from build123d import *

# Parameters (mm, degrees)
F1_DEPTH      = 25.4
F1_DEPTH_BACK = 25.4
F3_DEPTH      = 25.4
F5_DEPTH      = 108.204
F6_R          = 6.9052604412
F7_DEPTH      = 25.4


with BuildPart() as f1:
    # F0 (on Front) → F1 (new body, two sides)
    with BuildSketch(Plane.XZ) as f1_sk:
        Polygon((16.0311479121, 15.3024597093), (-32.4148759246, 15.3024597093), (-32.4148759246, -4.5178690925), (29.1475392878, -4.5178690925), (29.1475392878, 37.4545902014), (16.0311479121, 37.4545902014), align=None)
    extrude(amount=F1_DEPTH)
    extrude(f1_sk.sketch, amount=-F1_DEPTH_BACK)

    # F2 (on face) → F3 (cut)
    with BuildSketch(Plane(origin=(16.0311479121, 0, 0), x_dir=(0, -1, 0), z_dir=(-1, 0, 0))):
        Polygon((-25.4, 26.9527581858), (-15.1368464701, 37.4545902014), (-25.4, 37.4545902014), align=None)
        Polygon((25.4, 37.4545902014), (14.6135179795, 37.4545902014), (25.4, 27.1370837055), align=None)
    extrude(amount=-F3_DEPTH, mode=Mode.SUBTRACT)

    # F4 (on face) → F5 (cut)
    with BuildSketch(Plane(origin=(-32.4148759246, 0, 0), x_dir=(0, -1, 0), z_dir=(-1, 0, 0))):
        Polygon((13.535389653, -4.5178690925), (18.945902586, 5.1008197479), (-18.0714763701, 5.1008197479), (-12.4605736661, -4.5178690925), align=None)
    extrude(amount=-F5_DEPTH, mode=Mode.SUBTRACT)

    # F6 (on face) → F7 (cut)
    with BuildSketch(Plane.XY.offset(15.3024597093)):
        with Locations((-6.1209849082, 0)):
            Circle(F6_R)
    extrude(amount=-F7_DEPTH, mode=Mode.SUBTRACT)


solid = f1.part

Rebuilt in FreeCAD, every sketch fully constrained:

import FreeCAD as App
import Part
import Sketcher

V = App.Vector
Q = App.Units.Quantity


def add_polygon(sketch, points):
    """Adds a closed chain of lines whose ends are joined by coincident constraints."""
    first, n = sketch.GeometryCount, len(points)
    for a, b in zip(points, points[1:] + points[:1]):
        sketch.addGeometry(Part.LineSegment(App.Vector(*a, 0), App.Vector(*b, 0)), False)
    for i in range(n):
        sketch.addConstraint(Sketcher.Constraint("Coincident", first + i, 2, first + (i + 1) % n, 1))

doc = App.newDocument("Part")
params = doc.addObject("Spreadsheet::Sheet", "Params")
for row, (alias, value) in enumerate([
    ("pad1_length", "1 in"),
    ("pad1_length2", "1 in"),
    ("pocket1_length", "1 in"),
    ("pocket2_length", "4.26 in"),
    ("pocket3_length", "1 in"),
], start=1):
    params.set(f"A{row}", alias)
    params.set(f"B{row}", "=" + value)
    params.setAlias(f"B{row}", alias)

body = doc.addObject("PartDesign::Body", "Body")

sketch1 = body.newObject("Sketcher::SketchObject", "Sketch")
sketch1.AttachmentSupport = (doc.getObject("XZ_Plane"), [""])
sketch1.MapMode = "FlatFace"
add_polygon(sketch1, [(16, 15), (-32, 15), (-32, -5), (29, -5), (29, 37), (16, 37)])
sketch1.addConstraint([
    Sketcher.Constraint("Horizontal", 0),
    Sketcher.Constraint("Vertical", 1),
    Sketcher.Constraint("Horizontal", 2),
    Sketcher.Constraint("Vertical", 3),
    Sketcher.Constraint("Horizontal", 4),
    Sketcher.Constraint("Vertical", 5),
    Sketcher.Constraint("DistanceX", 4, 2, 4, 1, 13.116391),
    Sketcher.Constraint("DistanceY", 1, 2, 1, 1, 19.820329),
    Sketcher.Constraint("DistanceY", 3, 1, 3, 2, 41.972459),
    Sketcher.Constraint("DistanceX", 0, 2, 0, 1, 48.446024),
    Sketcher.Constraint("DistanceY", -1, 1, 0, 2, 15.30246),
    Sketcher.Constraint("DistanceX", -1, 1, 2, 2, 29.147539),
])
pad1 = body.newObject("PartDesign::Pad", "Pad")
pad1.Profile = sketch1
pad1.Type = "TwoLengths"
pad1.setExpression("Length", "Params.pad1_length")
pad1.setExpression("Length2", "Params.pad1_length2")

sketch2 = body.newObject("Sketcher::SketchObject", "Sketch001")
sketch2.AttachmentSupport = (doc.getObject("YZ_Plane"), [""])
sketch2.MapMode = "FlatFace"
sketch2.AttachmentOffset = App.Placement(V(0, 0, 16.031148), App.Rotation())
add_polygon(sketch2, [(25, 27), (15, 37), (25, 37)])
add_polygon(sketch2, [(-25, 37), (-15, 37), (-25, 27)])
sketch2.addConstraint([
    Sketcher.Constraint("Horizontal", 1),
    Sketcher.Constraint("Vertical", 2),
    Sketcher.Constraint("Horizontal", 3),
    Sketcher.Constraint("Vertical", 5),
    Sketcher.Constraint("Symmetric", 1, 2, 5, 2, -2),
    Sketcher.Constraint("DistanceX", -1, 1, 1, 2, Q("1 in")),
    Sketcher.Constraint("DistanceX", 1, 1, 1, 2, 10.263154),
    Sketcher.Constraint("DistanceX", 3, 1, 3, 2, 10.786482),
    Sketcher.Constraint("DistanceY", 2, 2, 2, 1, 10.501832),
    Sketcher.Constraint("DistanceY", 5, 1, 5, 2, 10.317506),
    Sketcher.Constraint("DistanceY", -1, 1, 0, 2, 37.45459),
])
pocket1 = body.newObject("PartDesign::Pocket", "Pocket")
pocket1.Profile = sketch2
pocket1.setExpression("Length", "Params.pocket1_length")
pocket1.Reversed = True

sketch3 = body.newObject("Sketcher::SketchObject", "Sketch002")
sketch3.AttachmentSupport = (doc.getObject("YZ_Plane"), [""])
sketch3.MapMode = "FlatFace"
sketch3.AttachmentOffset = App.Placement(V(0, 0, -32.414876), App.Rotation())
add_polygon(sketch3, [(-14, -5), (-19, 5), (18, 5), (12, -5)])
sketch3.addConstraint([
    Sketcher.Constraint("Horizontal", 1),
    Sketcher.Constraint("Horizontal", 3),
    Sketcher.Constraint("DistanceX", 1, 1, 1, 2, 37.017379),
    Sketcher.Constraint("Distance", 0, 11.035979),
    Sketcher.Constraint("Distance", 2, 11.135592),
    Sketcher.Constraint("DistanceX", 3, 2, 3, 1, 25.995963),
    Sketcher.Constraint("DistanceY", -1, 1, 0, 2, 5.10082),
    Sketcher.Constraint("DistanceX", 3, 2, -1, 1, 13.53539),
])
pocket2 = body.newObject("PartDesign::Pocket", "Pocket001")
pocket2.Profile = sketch3
pocket2.setExpression("Length", "Params.pocket2_length")
pocket2.Reversed = True

sketch4 = body.newObject("Sketcher::SketchObject", "Sketch003")
sketch4.AttachmentSupport = (doc.getObject("XY_Plane"), [""])
sketch4.MapMode = "FlatFace"
sketch4.AttachmentOffset = App.Placement(V(0, 0, 15.30246), App.Rotation())
sketch4.addGeometry(Part.Circle(V(-6, 0, 0), V(0, 0, 1), 7), False)
sketch4.addConstraint([
    Sketcher.Constraint("PointOnObject", 0, 3, -1),
    Sketcher.Constraint("Diameter", 0, 13.810521),
    Sketcher.Constraint("DistanceX", 0, 3, -1, 1, 6.120985),
])
pocket3 = body.newObject("PartDesign::Pocket", "Pocket002")
pocket3.Profile = sketch4
pocket3.setExpression("Length", "Params.pocket3_length")

doc.recompute()
